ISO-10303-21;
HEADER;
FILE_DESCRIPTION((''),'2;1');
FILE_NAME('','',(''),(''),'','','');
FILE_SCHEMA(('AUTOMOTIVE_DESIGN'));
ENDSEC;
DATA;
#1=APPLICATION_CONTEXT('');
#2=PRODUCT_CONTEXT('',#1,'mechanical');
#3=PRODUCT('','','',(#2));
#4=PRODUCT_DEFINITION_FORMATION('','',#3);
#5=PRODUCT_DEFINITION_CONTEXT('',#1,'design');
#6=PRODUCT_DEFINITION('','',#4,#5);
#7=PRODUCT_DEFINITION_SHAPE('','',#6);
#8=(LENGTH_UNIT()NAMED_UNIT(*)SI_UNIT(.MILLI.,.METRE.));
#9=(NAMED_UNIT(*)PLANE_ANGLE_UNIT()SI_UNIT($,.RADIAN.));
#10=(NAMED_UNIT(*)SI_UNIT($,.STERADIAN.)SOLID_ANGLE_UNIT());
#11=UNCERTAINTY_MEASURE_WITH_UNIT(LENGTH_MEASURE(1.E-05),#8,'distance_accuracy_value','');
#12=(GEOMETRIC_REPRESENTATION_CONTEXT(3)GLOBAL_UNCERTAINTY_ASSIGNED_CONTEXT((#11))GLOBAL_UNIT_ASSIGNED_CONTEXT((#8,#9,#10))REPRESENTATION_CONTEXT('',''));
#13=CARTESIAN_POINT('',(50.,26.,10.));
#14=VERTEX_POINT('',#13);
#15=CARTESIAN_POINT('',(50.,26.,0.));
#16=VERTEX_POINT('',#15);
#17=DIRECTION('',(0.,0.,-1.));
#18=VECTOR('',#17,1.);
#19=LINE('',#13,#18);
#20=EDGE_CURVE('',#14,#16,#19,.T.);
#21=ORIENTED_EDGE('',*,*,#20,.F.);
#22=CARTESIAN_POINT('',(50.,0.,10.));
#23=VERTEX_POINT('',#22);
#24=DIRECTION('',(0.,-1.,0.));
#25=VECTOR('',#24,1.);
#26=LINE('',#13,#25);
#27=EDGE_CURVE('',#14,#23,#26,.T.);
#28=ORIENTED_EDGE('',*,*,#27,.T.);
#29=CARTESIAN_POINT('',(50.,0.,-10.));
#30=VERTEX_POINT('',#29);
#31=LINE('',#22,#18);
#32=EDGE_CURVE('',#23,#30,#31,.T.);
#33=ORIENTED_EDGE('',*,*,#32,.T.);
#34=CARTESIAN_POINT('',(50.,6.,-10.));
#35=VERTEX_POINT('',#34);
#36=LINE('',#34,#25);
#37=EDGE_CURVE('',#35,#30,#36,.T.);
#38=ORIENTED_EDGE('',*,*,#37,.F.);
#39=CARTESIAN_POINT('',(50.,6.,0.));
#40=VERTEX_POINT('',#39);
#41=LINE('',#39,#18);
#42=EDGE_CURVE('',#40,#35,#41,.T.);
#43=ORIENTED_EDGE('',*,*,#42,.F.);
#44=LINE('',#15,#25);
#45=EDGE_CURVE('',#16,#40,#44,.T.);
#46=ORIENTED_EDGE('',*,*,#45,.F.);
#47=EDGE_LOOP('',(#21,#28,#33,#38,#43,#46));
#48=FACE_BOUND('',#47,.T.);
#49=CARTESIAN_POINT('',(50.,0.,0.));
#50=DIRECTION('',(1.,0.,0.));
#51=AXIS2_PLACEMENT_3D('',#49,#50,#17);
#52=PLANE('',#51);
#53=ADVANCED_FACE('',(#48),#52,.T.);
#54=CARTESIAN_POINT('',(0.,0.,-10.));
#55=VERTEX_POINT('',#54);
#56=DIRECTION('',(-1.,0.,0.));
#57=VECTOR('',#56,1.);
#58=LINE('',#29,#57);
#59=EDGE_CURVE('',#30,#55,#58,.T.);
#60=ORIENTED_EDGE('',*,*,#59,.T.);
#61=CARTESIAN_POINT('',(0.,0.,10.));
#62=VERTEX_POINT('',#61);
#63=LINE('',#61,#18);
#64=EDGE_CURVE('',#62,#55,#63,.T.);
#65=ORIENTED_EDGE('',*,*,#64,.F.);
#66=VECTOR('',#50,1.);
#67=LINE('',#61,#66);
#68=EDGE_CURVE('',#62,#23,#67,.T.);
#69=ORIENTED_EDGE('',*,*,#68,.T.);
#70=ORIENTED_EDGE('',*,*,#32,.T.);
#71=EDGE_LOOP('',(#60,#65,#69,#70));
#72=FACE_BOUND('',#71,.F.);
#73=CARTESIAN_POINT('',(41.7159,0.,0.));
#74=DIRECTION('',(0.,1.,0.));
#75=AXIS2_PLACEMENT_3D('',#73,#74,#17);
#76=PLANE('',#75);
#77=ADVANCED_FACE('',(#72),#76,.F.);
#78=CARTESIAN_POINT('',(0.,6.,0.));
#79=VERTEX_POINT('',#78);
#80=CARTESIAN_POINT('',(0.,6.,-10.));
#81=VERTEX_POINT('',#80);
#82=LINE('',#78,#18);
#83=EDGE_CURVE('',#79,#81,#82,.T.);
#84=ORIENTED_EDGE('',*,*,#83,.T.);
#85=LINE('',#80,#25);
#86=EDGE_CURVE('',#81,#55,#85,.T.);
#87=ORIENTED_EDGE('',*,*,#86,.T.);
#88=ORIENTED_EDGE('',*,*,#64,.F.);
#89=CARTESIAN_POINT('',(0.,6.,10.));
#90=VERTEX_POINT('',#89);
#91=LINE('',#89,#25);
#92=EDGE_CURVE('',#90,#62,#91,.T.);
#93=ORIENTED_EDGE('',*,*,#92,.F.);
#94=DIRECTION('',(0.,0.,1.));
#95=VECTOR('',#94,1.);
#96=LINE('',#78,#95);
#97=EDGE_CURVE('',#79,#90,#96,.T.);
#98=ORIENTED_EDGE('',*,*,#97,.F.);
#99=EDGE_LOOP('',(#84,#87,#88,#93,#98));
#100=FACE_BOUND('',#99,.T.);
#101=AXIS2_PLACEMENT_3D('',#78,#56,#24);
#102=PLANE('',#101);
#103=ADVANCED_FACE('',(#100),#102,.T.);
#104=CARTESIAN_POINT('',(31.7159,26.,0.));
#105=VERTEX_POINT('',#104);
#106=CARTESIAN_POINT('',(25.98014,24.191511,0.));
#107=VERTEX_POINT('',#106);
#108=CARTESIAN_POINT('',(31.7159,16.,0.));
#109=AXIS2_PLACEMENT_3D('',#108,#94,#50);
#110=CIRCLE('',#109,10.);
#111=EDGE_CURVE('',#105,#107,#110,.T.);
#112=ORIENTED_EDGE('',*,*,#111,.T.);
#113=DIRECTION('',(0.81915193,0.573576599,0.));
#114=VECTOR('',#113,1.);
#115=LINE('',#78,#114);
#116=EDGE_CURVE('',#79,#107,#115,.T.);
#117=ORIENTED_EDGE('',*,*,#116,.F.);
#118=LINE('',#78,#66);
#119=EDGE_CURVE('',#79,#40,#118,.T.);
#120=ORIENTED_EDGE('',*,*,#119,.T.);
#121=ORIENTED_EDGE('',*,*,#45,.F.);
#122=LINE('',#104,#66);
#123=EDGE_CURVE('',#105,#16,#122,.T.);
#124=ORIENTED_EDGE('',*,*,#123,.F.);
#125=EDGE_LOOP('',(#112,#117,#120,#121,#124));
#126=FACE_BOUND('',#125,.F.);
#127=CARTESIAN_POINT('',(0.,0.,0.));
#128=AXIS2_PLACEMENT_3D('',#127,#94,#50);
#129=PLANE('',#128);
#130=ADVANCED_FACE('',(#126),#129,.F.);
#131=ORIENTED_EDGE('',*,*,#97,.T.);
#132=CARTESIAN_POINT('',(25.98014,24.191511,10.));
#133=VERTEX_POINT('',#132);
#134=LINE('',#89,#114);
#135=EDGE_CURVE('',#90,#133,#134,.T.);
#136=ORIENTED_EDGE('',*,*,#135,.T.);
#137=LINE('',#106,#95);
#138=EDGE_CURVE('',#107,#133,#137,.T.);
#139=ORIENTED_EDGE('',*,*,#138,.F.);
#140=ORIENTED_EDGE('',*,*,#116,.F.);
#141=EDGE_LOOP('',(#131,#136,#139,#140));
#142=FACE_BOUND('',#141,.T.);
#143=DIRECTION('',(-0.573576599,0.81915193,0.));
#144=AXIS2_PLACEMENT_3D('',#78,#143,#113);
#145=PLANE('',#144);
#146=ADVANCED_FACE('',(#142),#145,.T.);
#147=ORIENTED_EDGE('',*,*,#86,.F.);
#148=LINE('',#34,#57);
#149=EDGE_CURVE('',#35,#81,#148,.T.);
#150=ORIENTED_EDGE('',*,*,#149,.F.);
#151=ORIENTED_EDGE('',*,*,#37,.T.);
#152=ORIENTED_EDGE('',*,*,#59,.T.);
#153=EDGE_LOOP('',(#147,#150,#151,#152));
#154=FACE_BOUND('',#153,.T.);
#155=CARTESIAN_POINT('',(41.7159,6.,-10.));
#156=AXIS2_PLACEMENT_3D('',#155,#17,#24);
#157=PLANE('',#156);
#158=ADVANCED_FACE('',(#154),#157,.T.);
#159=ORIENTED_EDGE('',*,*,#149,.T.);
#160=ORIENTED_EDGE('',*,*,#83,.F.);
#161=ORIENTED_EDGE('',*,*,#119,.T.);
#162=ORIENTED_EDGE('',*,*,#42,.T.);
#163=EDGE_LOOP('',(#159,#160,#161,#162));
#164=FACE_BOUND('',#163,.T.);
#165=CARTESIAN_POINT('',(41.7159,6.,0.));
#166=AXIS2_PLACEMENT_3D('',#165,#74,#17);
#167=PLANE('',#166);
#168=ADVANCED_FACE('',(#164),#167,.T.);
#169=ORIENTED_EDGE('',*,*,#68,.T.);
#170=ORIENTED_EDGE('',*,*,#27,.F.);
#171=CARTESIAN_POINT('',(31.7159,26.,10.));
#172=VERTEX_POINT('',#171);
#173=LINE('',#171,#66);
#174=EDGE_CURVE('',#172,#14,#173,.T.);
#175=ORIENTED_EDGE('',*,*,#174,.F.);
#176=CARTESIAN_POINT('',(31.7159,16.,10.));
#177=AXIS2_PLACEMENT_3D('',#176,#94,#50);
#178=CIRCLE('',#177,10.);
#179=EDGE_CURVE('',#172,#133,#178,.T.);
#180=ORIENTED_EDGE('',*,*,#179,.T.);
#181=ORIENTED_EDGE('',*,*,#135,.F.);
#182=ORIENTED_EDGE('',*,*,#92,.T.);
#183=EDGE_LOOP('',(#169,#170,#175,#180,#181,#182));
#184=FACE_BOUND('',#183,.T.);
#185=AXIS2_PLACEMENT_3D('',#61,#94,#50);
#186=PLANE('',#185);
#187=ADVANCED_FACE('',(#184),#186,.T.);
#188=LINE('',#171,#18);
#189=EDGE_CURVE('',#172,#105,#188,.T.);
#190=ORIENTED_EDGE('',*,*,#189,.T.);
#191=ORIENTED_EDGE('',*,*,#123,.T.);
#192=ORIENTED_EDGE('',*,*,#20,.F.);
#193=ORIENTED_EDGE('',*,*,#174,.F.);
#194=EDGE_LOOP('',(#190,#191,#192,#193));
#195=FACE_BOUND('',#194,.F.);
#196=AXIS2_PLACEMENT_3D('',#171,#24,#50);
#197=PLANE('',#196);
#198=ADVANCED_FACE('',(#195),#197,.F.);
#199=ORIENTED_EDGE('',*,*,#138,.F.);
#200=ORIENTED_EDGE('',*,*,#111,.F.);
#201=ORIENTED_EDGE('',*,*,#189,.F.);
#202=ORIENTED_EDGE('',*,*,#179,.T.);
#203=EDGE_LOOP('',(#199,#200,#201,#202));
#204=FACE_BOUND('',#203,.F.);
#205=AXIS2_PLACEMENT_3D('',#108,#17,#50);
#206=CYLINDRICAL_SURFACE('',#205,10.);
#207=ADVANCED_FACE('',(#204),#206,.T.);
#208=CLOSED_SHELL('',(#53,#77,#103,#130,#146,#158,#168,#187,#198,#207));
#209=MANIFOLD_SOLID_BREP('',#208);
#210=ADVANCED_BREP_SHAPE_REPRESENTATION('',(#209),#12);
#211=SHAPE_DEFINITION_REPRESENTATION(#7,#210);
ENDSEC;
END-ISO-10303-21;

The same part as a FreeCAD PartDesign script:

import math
import FreeCAD as App
import Part
import Sketcher
from FreeCAD import Vector
Q = App.Units.Quantity

doc = App.newDocument("Part")
params = doc.addObject("Spreadsheet::Sheet", "Params")
for row, (alias, value) in enumerate([
    ("sketch1_radius", "10 mm"),
    ("sketch1_height", "6 mm"),
    ("sketch1_height2", "16 mm"),
    ("pad1_length", "10 mm"),
    ("sketch2_height", "6 mm"),
    ("pad2_length", "10 mm"),
    ("sketch3_radius", "10 mm"),
    ("sketch3_height", "16 mm"),
    ("pad3_length", "10 mm"),
    ("sketch4_width", "6 mm"),
    ("sketch4_height", "10 mm"),
    ("pad4_length", "8.2841 mm"),
], start=1):
    params.set(f"A{row}", alias)
    params.set(f"B{row}", "=" + value)
    params.setAlias(f"B{row}", alias)

body = doc.addObject("PartDesign::Body", "Body")

# Sketch on XY plane
sketch1 = body.newObject("Sketcher::SketchObject", "Sketch")
sketch1.AttachmentSupport = (doc.getObject("XY_Plane"), [""])
sketch1.MapMode = "FlatFace"
sketch1.addGeometry([
    Part.LineSegment(Vector(0, 6, 0), Vector(0, 0, 0)),  # 0
    Part.LineSegment(Vector(0, 0, 0), Vector(42, 0, 0)),  # 1
    Part.LineSegment(Vector(42, 0, 0), Vector(42, 16, 0)),  # 2
    Part.ArcOfCircle(Part.Circle(Vector(32, 16, 0), Vector(0, 0, 1), 10), math.radians(0), math.radians(125)),  # 3
    Part.LineSegment(Vector(26, 24, 0), Vector(0, 6, 0)),  # 4
], False)
sketch1.addConstraint([
    Sketcher.Constraint("Coincident", 0, 2, 1, 1),
    Sketcher.Constraint("Coincident", 1, 2, 2, 1),
    Sketcher.Constraint("Tangent", 2, 2, 3, 1),
    Sketcher.Constraint("Tangent", 3, 2, 4, 1),
    Sketcher.Constraint("Coincident", 4, 2, 0, 1),
    Sketcher.Constraint("Vertical", 0),
    Sketcher.Constraint("Horizontal", 1),
    Sketcher.Constraint("Vertical", 2),
    Sketcher.Constraint("Coincident", 0, 2, -1, 1),
    Sketcher.Constraint("Radius", 3, 10.0),
    Sketcher.Constraint("DistanceY", 0, 2, 0, 1, 6.0),
    Sketcher.Constraint("DistanceY", 2, 1, 2, 2, 16.0),
    Sketcher.Constraint("Angle", 4, Q("-145 deg")),
])
sketch1.setExpression("Constraints[9]", "Params.sketch1_radius")
sketch1.setExpression("Constraints[10]", "Params.sketch1_height")
sketch1.setExpression("Constraints[11]", "Params.sketch1_height2")
pad1 = body.newObject("PartDesign::Pad", "Pad")
pad1.Profile = sketch1
pad1.setExpression("Length", "Params.pad1_length")

# Sketch on XY plane
sketch2 = body.newObject("Sketcher::SketchObject", "Sketch001")
sketch2.AttachmentSupport = (doc.getObject("XY_Plane"), [""])
sketch2.MapMode = "FlatFace"
sketch2.addGeometry([
    Part.LineSegment(Vector(42, 6, 0), Vector(42, 0, 0)),
    Part.LineSegment(Vector(42, 0, 0), Vector(0, 0, 0)),
    Part.LineSegment(Vector(0, 0, 0), Vector(0, 6, 0)),
    Part.LineSegment(Vector(0, 6, 0), Vector(42, 6, 0)),
], False)
sketch2.addConstraint([
    Sketcher.Constraint("Coincident", 0, 2, 1, 1),
    Sketcher.Constraint("Coincident", 1, 2, 2, 1),
    Sketcher.Constraint("Coincident", 2, 2, 3, 1),
    Sketcher.Constraint("Coincident", 3, 2, 0, 1),
    Sketcher.Constraint("Vertical", 0),
    Sketcher.Constraint("Horizontal", 1),
    Sketcher.Constraint("Vertical", 2),
    Sketcher.Constraint("Horizontal", 3),
    Sketcher.Constraint("Coincident", 1, 2, -1, 1),
    Sketcher.Constraint("DistanceY", 0, 2, 0, 1, 6.0),
    Sketcher.Constraint("DistanceX", 1, 2, 1, 1, 41.716),
])
sketch2.setExpression("Constraints[9]", "Params.sketch2_height")
pad2 = body.newObject("PartDesign::Pad", "Pad001")
pad2.Profile = sketch2
pad2.setExpression("Length", "Params.pad2_length")
pad2.Reversed = True

# Sketch on XY plane
sketch3 = body.newObject("Sketcher::SketchObject", "Sketch002")
sketch3.AttachmentSupport = (doc.getObject("XY_Plane"), [""])
sketch3.MapMode = "FlatFace"
sketch3.AttachmentOffset = App.Placement(Vector(0, 0, 10), App.Rotation())
sketch3.addGeometry([
    Part.LineSegment(Vector(50, 26, 0), Vector(32, 26, 0)),  # 0
    Part.ArcOfCircle(Part.Circle(Vector(32, 16, 0), Vector(0, 0, 1), 10), math.radians(0), math.radians(90)),  # 1
    Part.LineSegment(Vector(42, 16, 0), Vector(42, 0, 0)),  # 2
    Part.LineSegment(Vector(42, 0, 0), Vector(50, 0, 0)),  # 3
    Part.LineSegment(Vector(50, 0, 0), Vector(50, 26, 0)),  # 4
], False)
sketch3.addConstraint([
    Sketcher.Constraint("Tangent", 0, 2, 1, 2),
    Sketcher.Constraint("Tangent", 1, 1, 2, 1),
    Sketcher.Constraint("Coincident", 2, 2, 3, 1),
    Sketcher.Constraint("Coincident", 3, 2, 4, 1),
    Sketcher.Constraint("Coincident", 4, 2, 0, 1),
    Sketcher.Constraint("Horizontal", 0),
    Sketcher.Constraint("Vertical", 2),
    Sketcher.Constraint("Horizontal", 3),
    Sketcher.Constraint("Vertical", 4),
    Sketcher.Constraint("PointOnObject", 2, 2, -1),
    Sketcher.Constraint("DistanceX", -1, 1, 3, 2, 50.0),
    Sketcher.Constraint("Radius", 1, 10.0),
    Sketcher.Constraint("DistanceY", 2, 2, 2, 1, 16.0),
    Sketcher.Constraint("DistanceX", 0, 2, 0, 1, 18.284),
])
sketch3.setExpression("Constraints[11]", "Params.sketch3_radius")
sketch3.setExpression("Constraints[12]", "Params.sketch3_height")
pad3 = body.newObject("PartDesign::Pad", "Pad002")
pad3.Profile = sketch3
pad3.setExpression("Length", "Params.pad3_length")
pad3.Reversed = True

# Sketch on YZ plane
sketch4 = body.newObject("Sketcher::SketchObject", "Sketch003")
sketch4.AttachmentSupport = (doc.getObject("YZ_Plane"), [""])
sketch4.MapMode = "FlatFace"
sketch4.AttachmentOffset = App.Placement(Vector(0, 0, 41.7159), App.Rotation())
sketch4.addGeometry([
    Part.LineSegment(Vector(6, -10, 0), Vector(6, 0, 0)),
    Part.LineSegment(Vector(6, 0, 0), Vector(0, 0, 0)),
    Part.LineSegment(Vector(0, 0, 0), Vector(0, -10, 0)),
    Part.LineSegment(Vector(0, -10, 0), Vector(6, -10, 0)),
], False)
sketch4.addConstraint([
    Sketcher.Constraint("Coincident", 0, 2, 1, 1),
    Sketcher.Constraint("Coincident", 1, 2, 2, 1),
    Sketcher.Constraint("Coincident", 2, 2, 3, 1),
    Sketcher.Constraint("Coincident", 3, 2, 0, 1),
    Sketcher.Constraint("Vertical", 0),
    Sketcher.Constraint("Horizontal", 1),
    Sketcher.Constraint("Vertical", 2),
    Sketcher.Constraint("Horizontal", 3),
    Sketcher.Constraint("Coincident", 1, 2, -1, 1),
    Sketcher.Constraint("DistanceX", 1, 2, 1, 1, 6.0),
    Sketcher.Constraint("DistanceY", 0, 1, 0, 2, 10.0),
])
sketch4.setExpression("Constraints[9]", "Params.sketch4_width")
sketch4.setExpression("Constraints[10]", "Params.sketch4_height")
pad4 = body.newObject("PartDesign::Pad", "Pad003")
pad4.Profile = sketch4
pad4.setExpression("Length", "Params.pad4_length")

doc.recompute()
